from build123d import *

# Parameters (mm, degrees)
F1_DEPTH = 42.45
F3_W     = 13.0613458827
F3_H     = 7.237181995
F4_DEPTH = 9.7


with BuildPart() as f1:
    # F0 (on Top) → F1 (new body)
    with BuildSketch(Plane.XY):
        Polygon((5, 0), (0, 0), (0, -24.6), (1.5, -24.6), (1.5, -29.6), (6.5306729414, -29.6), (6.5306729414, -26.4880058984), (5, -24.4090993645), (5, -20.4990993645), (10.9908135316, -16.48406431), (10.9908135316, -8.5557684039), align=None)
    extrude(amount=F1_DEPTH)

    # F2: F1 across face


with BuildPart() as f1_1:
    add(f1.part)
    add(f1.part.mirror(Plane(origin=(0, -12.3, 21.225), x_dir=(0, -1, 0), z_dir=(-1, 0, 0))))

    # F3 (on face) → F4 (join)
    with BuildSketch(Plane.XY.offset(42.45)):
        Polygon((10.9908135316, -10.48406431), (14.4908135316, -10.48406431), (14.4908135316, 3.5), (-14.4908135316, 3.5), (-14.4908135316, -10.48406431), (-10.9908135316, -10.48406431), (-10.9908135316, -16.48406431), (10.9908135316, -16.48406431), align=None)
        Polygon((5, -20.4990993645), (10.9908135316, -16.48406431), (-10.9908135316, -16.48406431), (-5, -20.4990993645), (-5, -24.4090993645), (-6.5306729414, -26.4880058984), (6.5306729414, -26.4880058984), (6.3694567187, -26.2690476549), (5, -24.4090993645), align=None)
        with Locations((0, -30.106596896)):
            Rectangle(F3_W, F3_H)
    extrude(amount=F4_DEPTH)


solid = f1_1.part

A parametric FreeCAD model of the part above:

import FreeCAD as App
import Part
import Sketcher
from FreeCAD import Vector
Q = App.Units.Quantity


def add_polygon(sketch, points):
    """Adds a closed chain of lines whose ends are joined by coincident constraints."""
    first, n = sketch.GeometryCount, len(points)
    for a, b in zip(points, points[1:] + points[:1]):
        sketch.addGeometry(Part.LineSegment(App.Vector(*a, 0), App.Vector(*b, 0)), False)
    for i in range(n):
        sketch.addConstraint(Sketcher.Constraint("Coincident", first + i, 2, first + (i + 1) % n, 1))

doc = App.newDocument("Part")
body = doc.addObject("PartDesign::Body", "Body")

# Sketch on XY plane
sketch1 = body.newObject("Sketcher::SketchObject", "Sketch")
sketch1.AttachmentSupport = (doc.getObject("XY_Plane"), [""])
sketch1.MapMode = "FlatFace"
add_polygon(sketch1, [(5, 0), (0, 0), (0, -24.6), (1.5, -24.6), (1.5, -29.6), (6.5, -29.6), (6.5, -26.5), (5, -24.4), (5, -20.5), (11, -16.5), (11, -8.6)])  # lines 0-10
sketch1.addConstraint([
    Sketcher.Constraint("Horizontal", 0),
    Sketcher.Constraint("Vertical", 1),
    Sketcher.Constraint("Horizontal", 2),
    Sketcher.Constraint("Vertical", 3),
    Sketcher.Constraint("Horizontal", 4),
    Sketcher.Constraint("Vertical", 5),
    Sketcher.Constraint("Vertical", 7),
    Sketcher.Constraint("Vertical", 9),
    Sketcher.Constraint("Coincident", 0, 2, -1, 1),
    Sketcher.Constraint("Vertical", 7, 2, 10, 2),
    Sketcher.Constraint("Equal", 0, 3),
    Sketcher.Constraint("DistanceX", 0, 2, 0, 1, 5.0),
    Sketcher.Constraint("Angle", 10, Q("125 deg")),
    Sketcher.Constraint("DistanceX", 2, 1, 2, 2, 1.5),
    Sketcher.Constraint("DistanceY", 1, 2, 1, 1, 24.6),
    Sketcher.Constraint("DistanceY", 7, 1, 7, 2, 3.91),
    Sketcher.Constraint("DistanceY", 6, 2, -1, 1, 24.409099),
    Sketcher.Constraint("Distance", 6, 2.58163),
    Sketcher.Constraint("Distance", 8, 7.21182),
    Sketcher.Constraint("DistanceX", 4, 1, 4, 2, 5.030673),
    Sketcher.Constraint("DistanceY", 9, 1, 9, 2, 7.928296),
])
pad1 = body.newObject("PartDesign::Pad", "Pad")
pad1.Profile = sketch1
pad1.Length = 42.45
body2 = doc.addObject("PartDesign::Body", "Body001")
doc.recompute()

body2.BaseFeature = body
doc.recompute()

mirroring = doc.addObject("Part::Mirroring", "Mirroring")
mirroring.Source = body
mirroring.Base = Vector(0, -12.3, 21.225)
mirroring.Normal = Vector(-1, 0, 0)
body3 = doc.addObject("PartDesign::Body", "Body002")
body3.BaseFeature = mirroring
boolean = body2.newObject("PartDesign::Boolean", "Boolean")
boolean.Type = "Fuse"
boolean.addObjects([body3])
doc.recompute()

# Sketch on XY plane
sketch2 = body2.newObject("Sketcher::SketchObject", "Sketch001")
sketch2.AttachmentSupport = (doc.getObject("XY_Plane001"), [""])
sketch2.MapMode = "FlatFace"
sketch2.AttachmentOffset = App.Placement(Vector(0, 0, 42.45), App.Rotation())
add_polygon(sketch2, [(10.99, -10.48), (14.49, -10.48), (14.49, 3.5), (-14.49, 3.5), (-14.49, -10.48), (-10.99, -10.48), (-10.99, -16.48), (-5, -20.5), (-5, -24.41), (-6.53, -26.49), (-6.53, -33.73), (6.53, -33.73), (6.53, -26.49), (6.37, -26.27), (5, -24.41), (5, -20.5), (10.99, -16.48)])  # lines 0-16
sketch2.addConstraint([
    Sketcher.Constraint("Horizontal", 0),
    Sketcher.Constraint("Vertical", 1),
    Sketcher.Constraint("Horizontal", 2),
    Sketcher.Constraint("Vertical", 3),
    Sketcher.Constraint("Horizontal", 4),
    Sketcher.Constraint("Vertical", 5),
    Sketcher.Constraint("Vertical", 7),
    Sketcher.Constraint("Vertical", 9),
    Sketcher.Constraint("Horizontal", 10),
    Sketcher.Constraint("Vertical", 11),
    Sketcher.Constraint("Vertical", 14),
    Sketcher.Constraint("Vertical", 16),
    Sketcher.Constraint("Symmetric", 0, 2, 3, 2, -2),
    Sketcher.Constraint("Symmetric", 8, 2, 11, 2, -2),
    Sketcher.Constraint("Symmetric", 7, 2, 13, 2, -2),
    Sketcher.Constraint("Symmetric", 5, 2, 15, 2, -2),
    Sketcher.Constraint("Parallel", 12, 13),
    Sketcher.Constraint("Horizontal", 6, 2, 14, 2),
    Sketcher.Constraint("DistanceY", 5, 2, 5, 1, 6.0),
    Sketcher.Constraint("DistanceX", 0, 1, 0, 2, 3.5),
    Sketcher.Constraint("DistanceX", 6, 2, -1, 1, 5.0),
    Sketcher.Constraint("DistanceY", 7, 2, 7, 1, 3.91),
    Sketcher.Constraint("DistanceY", -1, 1, 1, 2, 3.5),
    Sketcher.Constraint("DistanceY", 9, 2, 9, 1, 7.237182),
    Sketcher.Constraint("DistanceY", 6, 2, -1, 1, 20.499099),
    Sketcher.Constraint("Distance", 6, 7.21182),
    Sketcher.Constraint("Distance", 8, 2.58163),
    Sketcher.Constraint("DistanceX", 2, 2, 2, 1, 28.981627),
    Sketcher.Constraint("DistanceX", 10, 1, 10, 2, 13.061346),
    Sketcher.Constraint("DistanceY", 11, 2, 12, 2, 0.218958),
])
pad2 = body2.newObject("PartDesign::Pad", "Pad001")
pad2.Profile = sketch2
pad2.Length = 9.7
mirroring.Visibility = False

doc.recompute()
